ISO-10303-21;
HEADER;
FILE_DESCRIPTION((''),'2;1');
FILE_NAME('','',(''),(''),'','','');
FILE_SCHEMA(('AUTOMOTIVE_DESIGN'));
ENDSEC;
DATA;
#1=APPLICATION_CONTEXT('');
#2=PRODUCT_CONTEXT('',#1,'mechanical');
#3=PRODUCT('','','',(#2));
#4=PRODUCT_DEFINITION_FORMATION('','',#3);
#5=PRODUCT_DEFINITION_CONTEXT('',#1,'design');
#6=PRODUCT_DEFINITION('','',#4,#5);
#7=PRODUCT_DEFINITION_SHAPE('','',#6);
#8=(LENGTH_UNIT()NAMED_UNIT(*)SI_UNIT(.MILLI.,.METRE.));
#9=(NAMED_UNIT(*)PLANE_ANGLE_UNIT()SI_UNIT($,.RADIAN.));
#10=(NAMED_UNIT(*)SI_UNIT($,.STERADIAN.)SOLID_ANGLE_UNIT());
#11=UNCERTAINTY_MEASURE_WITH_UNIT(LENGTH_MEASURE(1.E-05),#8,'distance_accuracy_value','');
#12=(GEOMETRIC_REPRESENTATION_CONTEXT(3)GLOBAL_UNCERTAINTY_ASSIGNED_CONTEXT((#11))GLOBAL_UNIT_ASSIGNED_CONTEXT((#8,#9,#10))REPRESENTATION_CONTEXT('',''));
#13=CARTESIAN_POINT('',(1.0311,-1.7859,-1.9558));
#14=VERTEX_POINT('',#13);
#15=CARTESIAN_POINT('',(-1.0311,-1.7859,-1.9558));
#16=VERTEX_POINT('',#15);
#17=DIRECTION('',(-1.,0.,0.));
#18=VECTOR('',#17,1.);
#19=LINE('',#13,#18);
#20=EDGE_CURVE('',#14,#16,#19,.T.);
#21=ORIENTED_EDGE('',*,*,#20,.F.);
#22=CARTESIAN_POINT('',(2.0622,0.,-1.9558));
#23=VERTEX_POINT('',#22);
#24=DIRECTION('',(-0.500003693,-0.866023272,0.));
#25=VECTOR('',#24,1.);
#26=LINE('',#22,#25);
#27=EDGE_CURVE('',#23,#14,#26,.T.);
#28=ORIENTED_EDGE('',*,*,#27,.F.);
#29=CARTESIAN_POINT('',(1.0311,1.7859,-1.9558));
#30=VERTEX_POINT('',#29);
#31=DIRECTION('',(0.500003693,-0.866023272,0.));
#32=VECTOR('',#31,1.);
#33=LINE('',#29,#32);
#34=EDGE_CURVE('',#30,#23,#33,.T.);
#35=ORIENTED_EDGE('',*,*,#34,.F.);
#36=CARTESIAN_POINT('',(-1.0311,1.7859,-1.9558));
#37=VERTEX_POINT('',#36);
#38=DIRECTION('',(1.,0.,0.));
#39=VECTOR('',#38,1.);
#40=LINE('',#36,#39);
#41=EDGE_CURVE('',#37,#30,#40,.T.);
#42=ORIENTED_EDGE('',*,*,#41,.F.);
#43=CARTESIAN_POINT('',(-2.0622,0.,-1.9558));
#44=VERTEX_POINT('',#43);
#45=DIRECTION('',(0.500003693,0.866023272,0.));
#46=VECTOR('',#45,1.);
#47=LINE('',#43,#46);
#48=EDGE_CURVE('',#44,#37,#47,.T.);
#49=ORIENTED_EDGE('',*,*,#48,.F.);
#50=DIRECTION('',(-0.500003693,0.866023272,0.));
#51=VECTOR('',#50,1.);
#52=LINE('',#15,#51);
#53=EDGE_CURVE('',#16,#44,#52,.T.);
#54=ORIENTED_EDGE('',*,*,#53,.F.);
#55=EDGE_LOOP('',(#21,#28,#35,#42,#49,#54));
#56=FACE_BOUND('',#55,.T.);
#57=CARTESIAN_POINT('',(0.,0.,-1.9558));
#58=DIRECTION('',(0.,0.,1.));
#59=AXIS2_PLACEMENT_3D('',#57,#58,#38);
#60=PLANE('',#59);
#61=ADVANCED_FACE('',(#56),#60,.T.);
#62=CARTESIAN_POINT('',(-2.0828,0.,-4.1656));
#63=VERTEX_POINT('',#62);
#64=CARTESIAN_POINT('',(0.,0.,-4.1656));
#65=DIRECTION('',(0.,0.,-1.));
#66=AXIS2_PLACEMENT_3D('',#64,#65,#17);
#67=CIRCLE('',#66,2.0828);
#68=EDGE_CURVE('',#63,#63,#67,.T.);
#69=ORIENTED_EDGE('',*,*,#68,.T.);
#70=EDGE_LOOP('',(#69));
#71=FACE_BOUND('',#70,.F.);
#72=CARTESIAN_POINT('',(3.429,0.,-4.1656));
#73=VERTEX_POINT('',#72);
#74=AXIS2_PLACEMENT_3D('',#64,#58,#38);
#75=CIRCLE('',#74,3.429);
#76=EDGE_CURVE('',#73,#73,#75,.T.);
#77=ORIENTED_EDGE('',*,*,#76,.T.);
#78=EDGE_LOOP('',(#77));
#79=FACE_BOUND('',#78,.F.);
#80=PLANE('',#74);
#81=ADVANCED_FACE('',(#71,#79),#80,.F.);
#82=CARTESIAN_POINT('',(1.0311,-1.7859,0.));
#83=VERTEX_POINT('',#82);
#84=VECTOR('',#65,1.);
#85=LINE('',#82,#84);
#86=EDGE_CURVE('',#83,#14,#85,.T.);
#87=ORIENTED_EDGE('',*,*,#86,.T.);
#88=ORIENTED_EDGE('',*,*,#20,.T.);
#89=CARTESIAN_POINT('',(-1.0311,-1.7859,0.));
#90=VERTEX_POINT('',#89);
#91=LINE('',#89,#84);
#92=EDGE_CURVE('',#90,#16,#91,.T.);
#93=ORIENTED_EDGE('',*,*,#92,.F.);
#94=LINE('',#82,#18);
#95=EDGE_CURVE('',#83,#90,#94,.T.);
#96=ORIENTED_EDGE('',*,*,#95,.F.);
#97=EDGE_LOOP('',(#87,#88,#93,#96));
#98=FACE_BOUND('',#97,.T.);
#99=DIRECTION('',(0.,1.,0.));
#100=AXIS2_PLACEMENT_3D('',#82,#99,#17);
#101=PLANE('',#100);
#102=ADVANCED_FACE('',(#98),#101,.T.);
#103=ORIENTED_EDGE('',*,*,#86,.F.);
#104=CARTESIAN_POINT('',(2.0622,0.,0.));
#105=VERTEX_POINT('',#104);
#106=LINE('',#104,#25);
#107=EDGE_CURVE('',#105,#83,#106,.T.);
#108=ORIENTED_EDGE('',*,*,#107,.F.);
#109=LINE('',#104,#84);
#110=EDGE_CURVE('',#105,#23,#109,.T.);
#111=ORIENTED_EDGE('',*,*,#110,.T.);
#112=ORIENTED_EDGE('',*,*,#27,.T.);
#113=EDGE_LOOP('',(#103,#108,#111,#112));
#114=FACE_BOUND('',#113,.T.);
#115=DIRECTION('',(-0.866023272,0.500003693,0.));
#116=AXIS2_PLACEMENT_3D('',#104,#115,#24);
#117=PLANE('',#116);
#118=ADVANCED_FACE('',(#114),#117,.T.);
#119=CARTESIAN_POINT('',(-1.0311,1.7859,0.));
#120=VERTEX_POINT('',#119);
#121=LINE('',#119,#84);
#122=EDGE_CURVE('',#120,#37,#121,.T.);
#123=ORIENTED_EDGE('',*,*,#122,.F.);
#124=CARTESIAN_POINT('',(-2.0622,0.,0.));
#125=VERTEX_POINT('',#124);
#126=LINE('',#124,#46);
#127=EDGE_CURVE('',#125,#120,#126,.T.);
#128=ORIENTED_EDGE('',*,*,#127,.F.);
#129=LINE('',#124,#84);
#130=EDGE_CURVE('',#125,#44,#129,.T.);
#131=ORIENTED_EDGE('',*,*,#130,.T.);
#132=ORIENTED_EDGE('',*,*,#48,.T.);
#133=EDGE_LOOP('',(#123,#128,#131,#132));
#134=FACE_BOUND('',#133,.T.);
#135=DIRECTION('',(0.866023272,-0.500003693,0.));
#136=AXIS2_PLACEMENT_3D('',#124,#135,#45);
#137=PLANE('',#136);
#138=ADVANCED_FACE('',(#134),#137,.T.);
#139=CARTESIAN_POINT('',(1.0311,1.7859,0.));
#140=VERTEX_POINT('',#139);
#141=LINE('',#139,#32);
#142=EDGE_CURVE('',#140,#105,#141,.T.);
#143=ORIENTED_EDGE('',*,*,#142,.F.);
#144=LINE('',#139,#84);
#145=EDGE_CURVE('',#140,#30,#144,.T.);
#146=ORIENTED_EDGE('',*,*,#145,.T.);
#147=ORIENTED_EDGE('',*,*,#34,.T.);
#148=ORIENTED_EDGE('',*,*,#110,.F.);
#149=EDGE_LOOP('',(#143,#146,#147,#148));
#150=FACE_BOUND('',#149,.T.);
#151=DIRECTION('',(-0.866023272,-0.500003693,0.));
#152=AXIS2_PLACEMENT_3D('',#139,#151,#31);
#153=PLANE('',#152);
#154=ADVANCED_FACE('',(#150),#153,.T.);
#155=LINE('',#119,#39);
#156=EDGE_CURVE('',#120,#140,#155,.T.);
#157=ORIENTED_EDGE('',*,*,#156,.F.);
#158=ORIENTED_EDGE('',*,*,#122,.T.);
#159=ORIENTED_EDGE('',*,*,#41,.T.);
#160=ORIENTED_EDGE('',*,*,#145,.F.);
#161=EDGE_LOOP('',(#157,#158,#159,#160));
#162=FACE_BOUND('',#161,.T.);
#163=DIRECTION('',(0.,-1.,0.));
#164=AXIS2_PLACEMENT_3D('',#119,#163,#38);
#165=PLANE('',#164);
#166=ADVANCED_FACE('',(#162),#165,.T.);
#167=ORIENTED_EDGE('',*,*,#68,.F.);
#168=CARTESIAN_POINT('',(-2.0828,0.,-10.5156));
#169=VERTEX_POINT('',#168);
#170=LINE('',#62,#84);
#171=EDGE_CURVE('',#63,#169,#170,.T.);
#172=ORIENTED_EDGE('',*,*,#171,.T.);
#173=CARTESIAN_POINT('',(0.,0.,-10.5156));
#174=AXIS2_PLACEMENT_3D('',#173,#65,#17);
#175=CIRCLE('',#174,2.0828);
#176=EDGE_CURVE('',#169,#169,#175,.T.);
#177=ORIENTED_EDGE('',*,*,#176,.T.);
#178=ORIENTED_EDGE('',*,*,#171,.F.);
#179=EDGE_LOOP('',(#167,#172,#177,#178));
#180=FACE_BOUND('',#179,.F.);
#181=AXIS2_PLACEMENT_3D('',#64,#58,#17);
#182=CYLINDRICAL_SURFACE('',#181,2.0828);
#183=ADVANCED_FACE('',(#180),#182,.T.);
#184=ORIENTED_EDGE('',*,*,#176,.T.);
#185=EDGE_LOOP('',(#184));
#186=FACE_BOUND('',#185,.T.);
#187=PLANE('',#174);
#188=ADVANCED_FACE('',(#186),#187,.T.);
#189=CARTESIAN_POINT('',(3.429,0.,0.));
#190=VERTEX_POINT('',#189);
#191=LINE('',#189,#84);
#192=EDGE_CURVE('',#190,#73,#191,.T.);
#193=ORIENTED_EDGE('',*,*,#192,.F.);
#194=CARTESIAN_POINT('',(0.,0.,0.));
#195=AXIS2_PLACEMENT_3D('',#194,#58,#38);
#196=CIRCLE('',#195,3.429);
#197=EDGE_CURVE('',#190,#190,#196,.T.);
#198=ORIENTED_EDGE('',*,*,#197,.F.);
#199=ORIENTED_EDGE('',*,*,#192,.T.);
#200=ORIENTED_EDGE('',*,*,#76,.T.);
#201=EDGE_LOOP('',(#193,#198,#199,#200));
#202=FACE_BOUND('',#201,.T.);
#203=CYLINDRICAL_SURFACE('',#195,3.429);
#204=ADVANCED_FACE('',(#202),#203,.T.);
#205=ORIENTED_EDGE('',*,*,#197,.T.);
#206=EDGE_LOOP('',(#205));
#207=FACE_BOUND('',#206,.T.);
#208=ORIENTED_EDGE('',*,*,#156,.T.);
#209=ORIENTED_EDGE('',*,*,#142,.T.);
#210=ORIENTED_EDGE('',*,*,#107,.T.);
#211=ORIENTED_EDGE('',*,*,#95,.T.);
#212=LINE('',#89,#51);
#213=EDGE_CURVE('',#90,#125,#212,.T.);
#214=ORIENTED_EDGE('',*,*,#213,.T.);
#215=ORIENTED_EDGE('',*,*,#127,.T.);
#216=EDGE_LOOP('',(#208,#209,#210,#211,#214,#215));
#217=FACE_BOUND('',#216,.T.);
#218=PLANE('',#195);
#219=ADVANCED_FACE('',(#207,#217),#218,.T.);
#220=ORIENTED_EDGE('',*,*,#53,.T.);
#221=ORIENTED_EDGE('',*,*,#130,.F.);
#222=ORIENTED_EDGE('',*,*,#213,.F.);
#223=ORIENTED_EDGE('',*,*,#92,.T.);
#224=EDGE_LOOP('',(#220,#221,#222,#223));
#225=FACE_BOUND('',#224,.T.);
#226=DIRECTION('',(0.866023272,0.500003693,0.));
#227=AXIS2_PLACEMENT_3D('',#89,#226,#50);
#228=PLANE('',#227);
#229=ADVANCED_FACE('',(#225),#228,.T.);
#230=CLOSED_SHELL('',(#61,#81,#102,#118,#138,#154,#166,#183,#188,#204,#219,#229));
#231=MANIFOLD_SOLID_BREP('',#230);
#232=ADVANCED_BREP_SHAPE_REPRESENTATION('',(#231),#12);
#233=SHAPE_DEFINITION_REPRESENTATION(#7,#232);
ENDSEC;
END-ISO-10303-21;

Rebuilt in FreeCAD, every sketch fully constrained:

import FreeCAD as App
import Part
import Sketcher
from FreeCAD import Vector
Q = App.Units.Quantity


def add_polygon(sketch, points):
    """Adds a closed chain of lines whose ends are joined by coincident constraints."""
    first, n = sketch.GeometryCount, len(points)
    for a, b in zip(points, points[1:] + points[:1]):
        sketch.addGeometry(Part.LineSegment(App.Vector(*a, 0), App.Vector(*b, 0)), False)
    for i in range(n):
        sketch.addConstraint(Sketcher.Constraint("Coincident", first + i, 2, first + (i + 1) % n, 1))

doc = App.newDocument("Part")
params = doc.addObject("Spreadsheet::Sheet", "Params")
for row, (alias, value) in enumerate([
    ("sketch1_diameter", "0.27 in"),
    ("pad1_length", "0.164 in"),
    ("sketch2_diameter", "0.164 in"),
    ("pad2_length", "0.25 in"),
    ("pocket1_length", "0.077 in"),
], start=1):
    params.set(f"A{row}", alias)
    params.set(f"B{row}", "=" + value)
    params.setAlias(f"B{row}", alias)

body = doc.addObject("PartDesign::Body", "Body")

# Sketch on XY plane
sketch1 = doc.addObject("Sketcher::SketchObject", "Sketch")
body.addObject(sketch1)
sketch1.AttachmentSupport = (doc.XY_Plane, [""])
sketch1.MapMode = "FlatFace"
sketch1.addGeometry(Part.Circle(Vector(0, 0, 0), Vector(0, 0, 1), 3.429), False)
sketch1.addConstraint([
    Sketcher.Constraint("Coincident", 0, 3, -1, 1),
    Sketcher.Constraint("Diameter", 0, Q("0.27 in")),
])
sketch1.setExpression("Constraints[1]", "Params.sketch1_diameter")
pad1 = doc.addObject("PartDesign::Pad", "Pad")
body.addObject(pad1)
pad1.Profile = sketch1
pad1.setExpression("Length", "Params.pad1_length")
pad1.Reversed = True

# Sketch on XY plane
sketch2 = doc.addObject("Sketcher::SketchObject", "Sketch001")
body.addObject(sketch2)
sketch2.AttachmentSupport = (doc.XY_Plane, [""])
sketch2.MapMode = "FlatFace"
sketch2.AttachmentOffset = App.Placement(Vector(0, 0, -0.164 * 25.4), App.Rotation())
sketch2.addGeometry(Part.Circle(Vector(0, 0, 0), Vector(0, 0, 1), 2.0828), False)
sketch2.addConstraint([
    Sketcher.Constraint("Coincident", 0, 3, -1, 1),
    Sketcher.Constraint("Diameter", 0, Q("0.164 in")),
])
sketch2.setExpression("Constraints[1]", "Params.sketch2_diameter")
pad2 = doc.addObject("PartDesign::Pad", "Pad001")
body.addObject(pad2)
pad2.Profile = sketch2
pad2.setExpression("Length", "Params.pad2_length")
pad2.Reversed = True

# Sketch on XY plane
sketch3 = doc.addObject("Sketcher::SketchObject", "Sketch002")
body.addObject(sketch3)
sketch3.AttachmentSupport = (doc.XY_Plane, [""])
sketch3.MapMode = "FlatFace"
add_polygon(sketch3, [(1.0311, -1.7859), (2.0622, 0), (1.0311, 1.7859), (-1.0311, 1.7859), (-2.0622, 0), (-1.0311, -1.7859)])  # lines 0-5
sketch3.addConstraint([
    Sketcher.Constraint("Horizontal", 2),
    Sketcher.Constraint("Horizontal", 5),
    Sketcher.Constraint("Symmetric", 0, 2, 3, 2, -1, 1),
    Sketcher.Constraint("Symmetric", 1, 2, 4, 2, -1, 1),
    Sketcher.Constraint("PointOnObject", 0, 2, -1),
    Sketcher.Constraint("Parallel", 0, 3),
    Sketcher.Constraint("Vertical", 2, 2, 4, 2),
    Sketcher.Constraint("Angle", 0, Q("59.9998 deg")),
    Sketcher.Constraint("DistanceY", 4, 2, 2, 2, Q("0.140622 in")),
    Sketcher.Constraint("DistanceX", 2, 2, 2, 1, Q("0.0812 in")),
])
pocket1 = doc.addObject("PartDesign::Pocket", "Pocket")
body.addObject(pocket1)
pocket1.Profile = sketch3
pocket1.setExpression("Length", "Params.pocket1_length")

doc.recompute()
